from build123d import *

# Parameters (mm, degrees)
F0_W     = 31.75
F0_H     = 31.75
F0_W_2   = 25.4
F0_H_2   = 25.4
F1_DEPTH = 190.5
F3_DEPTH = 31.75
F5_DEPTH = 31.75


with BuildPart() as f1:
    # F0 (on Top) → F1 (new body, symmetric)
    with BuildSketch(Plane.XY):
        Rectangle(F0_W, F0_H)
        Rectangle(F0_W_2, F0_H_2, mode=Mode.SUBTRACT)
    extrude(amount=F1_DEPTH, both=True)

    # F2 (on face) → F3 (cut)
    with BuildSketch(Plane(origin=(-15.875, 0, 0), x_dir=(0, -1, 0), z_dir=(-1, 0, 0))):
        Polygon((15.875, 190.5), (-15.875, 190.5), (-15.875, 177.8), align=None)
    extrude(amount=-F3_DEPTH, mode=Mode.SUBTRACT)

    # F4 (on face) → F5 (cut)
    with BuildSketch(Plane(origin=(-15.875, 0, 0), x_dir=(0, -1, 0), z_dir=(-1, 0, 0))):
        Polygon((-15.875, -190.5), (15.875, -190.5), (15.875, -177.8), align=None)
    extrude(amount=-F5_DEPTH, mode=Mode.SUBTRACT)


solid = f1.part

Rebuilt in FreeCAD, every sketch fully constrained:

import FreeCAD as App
import Part
import Sketcher
from FreeCAD import Vector
Q = App.Units.Quantity

doc = App.newDocument("Part")
body = doc.addObject("PartDesign::Body", "Body")

# Sketch on XY plane
sketch1 = body.newObject("Sketcher::SketchObject", "Sketch")
sketch1.AttachmentSupport = (doc.getObject("XY_Plane"), [""])
sketch1.MapMode = "FlatFace"
sketch1.addGeometry([
    Part.LineSegment(Vector(-16, 16, 0), Vector(-16, -16, 0)),  # 0
    Part.LineSegment(Vector(-16, -16, 0), Vector(16, -16, 0)),  # 1
    Part.LineSegment(Vector(16, -16, 0), Vector(16, 16, 0)),  # 2
    Part.LineSegment(Vector(16, 16, 0), Vector(-16, 16, 0)),  # 3
    Part.LineSegment(Vector(13, -13, 0), Vector(-13, -13, 0)),  # 4
    Part.LineSegment(Vector(-13, -13, 0), Vector(-13, 13, 0)),  # 5
    Part.LineSegment(Vector(-13, 13, 0), Vector(13, 13, 0)),  # 6
    Part.LineSegment(Vector(13, 13, 0), Vector(13, -13, 0)),  # 7
], False)
sketch1.addConstraint([
    Sketcher.Constraint("Coincident", 0, 2, 1, 1),
    Sketcher.Constraint("Coincident", 1, 2, 2, 1),
    Sketcher.Constraint("Coincident", 2, 2, 3, 1),
    Sketcher.Constraint("Coincident", 3, 2, 0, 1),
    Sketcher.Constraint("Coincident", 4, 2, 5, 1),
    Sketcher.Constraint("Coincident", 5, 2, 6, 1),
    Sketcher.Constraint("Coincident", 6, 2, 7, 1),
    Sketcher.Constraint("Coincident", 7, 2, 4, 1),
    Sketcher.Constraint("Vertical", 0),
    Sketcher.Constraint("Horizontal", 1),
    Sketcher.Constraint("Vertical", 2),
    Sketcher.Constraint("Horizontal", 3),
    Sketcher.Constraint("Horizontal", 4),
    Sketcher.Constraint("Vertical", 5),
    Sketcher.Constraint("Horizontal", 6),
    Sketcher.Constraint("Vertical", 7),
    Sketcher.Constraint("Symmetric", 0, 2, 2, 2, -1, 1),
    Sketcher.Constraint("Symmetric", 4, 2, 6, 2, -1, 1),
    Sketcher.Constraint("Equal", 3, 0),
    Sketcher.Constraint("Equal", 6, 5),
    Sketcher.Constraint("DistanceX", 4, 2, 4, 1, Q("1 in")),
    Sketcher.Constraint("DistanceX", 1, 1, 1, 2, Q("1.25 in")),
])
pad1 = body.newObject("PartDesign::Pad", "Pad")
pad1.Profile = sketch1
pad1.Length = Q("15 in")
pad1.Midplane = True

# Sketch on YZ plane
sketch2 = body.newObject("Sketcher::SketchObject", "Sketch001")
sketch2.AttachmentSupport = (doc.getObject("YZ_Plane"), [""])
sketch2.MapMode = "FlatFace"
sketch2.AttachmentOffset = App.Placement(Vector(0, 0, -0.625 * 25.4), App.Rotation())
sketch2.addGeometry([
    Part.LineSegment(Vector(-16, 190, 0), Vector(16, 190, 0)),
    Part.LineSegment(Vector(16, 190, 0), Vector(16, 178, 0)),
    Part.LineSegment(Vector(16, 178, 0), Vector(-16, 190, 0)),
], False)
sketch2.addConstraint([
    Sketcher.Constraint("Coincident", 0, 2, 1, 1),
    Sketcher.Constraint("Coincident", 1, 2, 2, 1),
    Sketcher.Constraint("Coincident", 2, 2, 0, 1),
    Sketcher.Constraint("Horizontal", 0),
    Sketcher.Constraint("Vertical", 1),
    Sketcher.Constraint("DistanceY", 1, 2, 1, 1, Q("0.5 in")),
    Sketcher.Constraint("DistanceY", -1, 1, 1, 2, Q("7 in")),
    Sketcher.Constraint("DistanceX", 0, 1, 0, 2, Q("1.25 in")),
    Sketcher.Constraint("DistanceX", -1, 1, 0, 2, Q("0.625 in")),
])
pocket1 = body.newObject("PartDesign::Pocket", "Pocket")
pocket1.Profile = sketch2
pocket1.Length = Q("1.25 in")
pocket1.Reversed = True

# Sketch on YZ plane
sketch3 = body.newObject("Sketcher::SketchObject", "Sketch002")
sketch3.AttachmentSupport = (doc.getObject("YZ_Plane"), [""])
sketch3.MapMode = "FlatFace"
sketch3.AttachmentOffset = App.Placement(Vector(0, 0, -0.625 * 25.4), App.Rotation())
sketch3.addGeometry([
    Part.LineSegment(Vector(16, -190, 0), Vector(-16, -190, 0)),
    Part.LineSegment(Vector(-16, -190, 0), Vector(-16, -178, 0)),
    Part.LineSegment(Vector(-16, -178, 0), Vector(16, -190, 0)),
], False)
sketch3.addConstraint([
    Sketcher.Constraint("Coincident", 0, 2, 1, 1),
    Sketcher.Constraint("Coincident", 1, 2, 2, 1),
    Sketcher.Constraint("Coincident", 2, 2, 0, 1),
    Sketcher.Constraint("Horizontal", 0),
    Sketcher.Constraint("Vertical", 1),
    Sketcher.Constraint("DistanceY", 1, 1, 1, 2, Q("0.5 in")),
    Sketcher.Constraint("DistanceY", 1, 2, -1, 1, Q("7 in")),
    Sketcher.Constraint("DistanceX", 0, 2, 0, 1, Q("1.25 in")),
    Sketcher.Constraint("DistanceX", 0, 2, -1, 1, Q("0.625 in")),
])
pocket2 = body.newObject("PartDesign::Pocket", "Pocket001")
pocket2.Profile = sketch3
pocket2.Length = Q("1.25 in")
pocket2.Reversed = True

doc.recompute()
